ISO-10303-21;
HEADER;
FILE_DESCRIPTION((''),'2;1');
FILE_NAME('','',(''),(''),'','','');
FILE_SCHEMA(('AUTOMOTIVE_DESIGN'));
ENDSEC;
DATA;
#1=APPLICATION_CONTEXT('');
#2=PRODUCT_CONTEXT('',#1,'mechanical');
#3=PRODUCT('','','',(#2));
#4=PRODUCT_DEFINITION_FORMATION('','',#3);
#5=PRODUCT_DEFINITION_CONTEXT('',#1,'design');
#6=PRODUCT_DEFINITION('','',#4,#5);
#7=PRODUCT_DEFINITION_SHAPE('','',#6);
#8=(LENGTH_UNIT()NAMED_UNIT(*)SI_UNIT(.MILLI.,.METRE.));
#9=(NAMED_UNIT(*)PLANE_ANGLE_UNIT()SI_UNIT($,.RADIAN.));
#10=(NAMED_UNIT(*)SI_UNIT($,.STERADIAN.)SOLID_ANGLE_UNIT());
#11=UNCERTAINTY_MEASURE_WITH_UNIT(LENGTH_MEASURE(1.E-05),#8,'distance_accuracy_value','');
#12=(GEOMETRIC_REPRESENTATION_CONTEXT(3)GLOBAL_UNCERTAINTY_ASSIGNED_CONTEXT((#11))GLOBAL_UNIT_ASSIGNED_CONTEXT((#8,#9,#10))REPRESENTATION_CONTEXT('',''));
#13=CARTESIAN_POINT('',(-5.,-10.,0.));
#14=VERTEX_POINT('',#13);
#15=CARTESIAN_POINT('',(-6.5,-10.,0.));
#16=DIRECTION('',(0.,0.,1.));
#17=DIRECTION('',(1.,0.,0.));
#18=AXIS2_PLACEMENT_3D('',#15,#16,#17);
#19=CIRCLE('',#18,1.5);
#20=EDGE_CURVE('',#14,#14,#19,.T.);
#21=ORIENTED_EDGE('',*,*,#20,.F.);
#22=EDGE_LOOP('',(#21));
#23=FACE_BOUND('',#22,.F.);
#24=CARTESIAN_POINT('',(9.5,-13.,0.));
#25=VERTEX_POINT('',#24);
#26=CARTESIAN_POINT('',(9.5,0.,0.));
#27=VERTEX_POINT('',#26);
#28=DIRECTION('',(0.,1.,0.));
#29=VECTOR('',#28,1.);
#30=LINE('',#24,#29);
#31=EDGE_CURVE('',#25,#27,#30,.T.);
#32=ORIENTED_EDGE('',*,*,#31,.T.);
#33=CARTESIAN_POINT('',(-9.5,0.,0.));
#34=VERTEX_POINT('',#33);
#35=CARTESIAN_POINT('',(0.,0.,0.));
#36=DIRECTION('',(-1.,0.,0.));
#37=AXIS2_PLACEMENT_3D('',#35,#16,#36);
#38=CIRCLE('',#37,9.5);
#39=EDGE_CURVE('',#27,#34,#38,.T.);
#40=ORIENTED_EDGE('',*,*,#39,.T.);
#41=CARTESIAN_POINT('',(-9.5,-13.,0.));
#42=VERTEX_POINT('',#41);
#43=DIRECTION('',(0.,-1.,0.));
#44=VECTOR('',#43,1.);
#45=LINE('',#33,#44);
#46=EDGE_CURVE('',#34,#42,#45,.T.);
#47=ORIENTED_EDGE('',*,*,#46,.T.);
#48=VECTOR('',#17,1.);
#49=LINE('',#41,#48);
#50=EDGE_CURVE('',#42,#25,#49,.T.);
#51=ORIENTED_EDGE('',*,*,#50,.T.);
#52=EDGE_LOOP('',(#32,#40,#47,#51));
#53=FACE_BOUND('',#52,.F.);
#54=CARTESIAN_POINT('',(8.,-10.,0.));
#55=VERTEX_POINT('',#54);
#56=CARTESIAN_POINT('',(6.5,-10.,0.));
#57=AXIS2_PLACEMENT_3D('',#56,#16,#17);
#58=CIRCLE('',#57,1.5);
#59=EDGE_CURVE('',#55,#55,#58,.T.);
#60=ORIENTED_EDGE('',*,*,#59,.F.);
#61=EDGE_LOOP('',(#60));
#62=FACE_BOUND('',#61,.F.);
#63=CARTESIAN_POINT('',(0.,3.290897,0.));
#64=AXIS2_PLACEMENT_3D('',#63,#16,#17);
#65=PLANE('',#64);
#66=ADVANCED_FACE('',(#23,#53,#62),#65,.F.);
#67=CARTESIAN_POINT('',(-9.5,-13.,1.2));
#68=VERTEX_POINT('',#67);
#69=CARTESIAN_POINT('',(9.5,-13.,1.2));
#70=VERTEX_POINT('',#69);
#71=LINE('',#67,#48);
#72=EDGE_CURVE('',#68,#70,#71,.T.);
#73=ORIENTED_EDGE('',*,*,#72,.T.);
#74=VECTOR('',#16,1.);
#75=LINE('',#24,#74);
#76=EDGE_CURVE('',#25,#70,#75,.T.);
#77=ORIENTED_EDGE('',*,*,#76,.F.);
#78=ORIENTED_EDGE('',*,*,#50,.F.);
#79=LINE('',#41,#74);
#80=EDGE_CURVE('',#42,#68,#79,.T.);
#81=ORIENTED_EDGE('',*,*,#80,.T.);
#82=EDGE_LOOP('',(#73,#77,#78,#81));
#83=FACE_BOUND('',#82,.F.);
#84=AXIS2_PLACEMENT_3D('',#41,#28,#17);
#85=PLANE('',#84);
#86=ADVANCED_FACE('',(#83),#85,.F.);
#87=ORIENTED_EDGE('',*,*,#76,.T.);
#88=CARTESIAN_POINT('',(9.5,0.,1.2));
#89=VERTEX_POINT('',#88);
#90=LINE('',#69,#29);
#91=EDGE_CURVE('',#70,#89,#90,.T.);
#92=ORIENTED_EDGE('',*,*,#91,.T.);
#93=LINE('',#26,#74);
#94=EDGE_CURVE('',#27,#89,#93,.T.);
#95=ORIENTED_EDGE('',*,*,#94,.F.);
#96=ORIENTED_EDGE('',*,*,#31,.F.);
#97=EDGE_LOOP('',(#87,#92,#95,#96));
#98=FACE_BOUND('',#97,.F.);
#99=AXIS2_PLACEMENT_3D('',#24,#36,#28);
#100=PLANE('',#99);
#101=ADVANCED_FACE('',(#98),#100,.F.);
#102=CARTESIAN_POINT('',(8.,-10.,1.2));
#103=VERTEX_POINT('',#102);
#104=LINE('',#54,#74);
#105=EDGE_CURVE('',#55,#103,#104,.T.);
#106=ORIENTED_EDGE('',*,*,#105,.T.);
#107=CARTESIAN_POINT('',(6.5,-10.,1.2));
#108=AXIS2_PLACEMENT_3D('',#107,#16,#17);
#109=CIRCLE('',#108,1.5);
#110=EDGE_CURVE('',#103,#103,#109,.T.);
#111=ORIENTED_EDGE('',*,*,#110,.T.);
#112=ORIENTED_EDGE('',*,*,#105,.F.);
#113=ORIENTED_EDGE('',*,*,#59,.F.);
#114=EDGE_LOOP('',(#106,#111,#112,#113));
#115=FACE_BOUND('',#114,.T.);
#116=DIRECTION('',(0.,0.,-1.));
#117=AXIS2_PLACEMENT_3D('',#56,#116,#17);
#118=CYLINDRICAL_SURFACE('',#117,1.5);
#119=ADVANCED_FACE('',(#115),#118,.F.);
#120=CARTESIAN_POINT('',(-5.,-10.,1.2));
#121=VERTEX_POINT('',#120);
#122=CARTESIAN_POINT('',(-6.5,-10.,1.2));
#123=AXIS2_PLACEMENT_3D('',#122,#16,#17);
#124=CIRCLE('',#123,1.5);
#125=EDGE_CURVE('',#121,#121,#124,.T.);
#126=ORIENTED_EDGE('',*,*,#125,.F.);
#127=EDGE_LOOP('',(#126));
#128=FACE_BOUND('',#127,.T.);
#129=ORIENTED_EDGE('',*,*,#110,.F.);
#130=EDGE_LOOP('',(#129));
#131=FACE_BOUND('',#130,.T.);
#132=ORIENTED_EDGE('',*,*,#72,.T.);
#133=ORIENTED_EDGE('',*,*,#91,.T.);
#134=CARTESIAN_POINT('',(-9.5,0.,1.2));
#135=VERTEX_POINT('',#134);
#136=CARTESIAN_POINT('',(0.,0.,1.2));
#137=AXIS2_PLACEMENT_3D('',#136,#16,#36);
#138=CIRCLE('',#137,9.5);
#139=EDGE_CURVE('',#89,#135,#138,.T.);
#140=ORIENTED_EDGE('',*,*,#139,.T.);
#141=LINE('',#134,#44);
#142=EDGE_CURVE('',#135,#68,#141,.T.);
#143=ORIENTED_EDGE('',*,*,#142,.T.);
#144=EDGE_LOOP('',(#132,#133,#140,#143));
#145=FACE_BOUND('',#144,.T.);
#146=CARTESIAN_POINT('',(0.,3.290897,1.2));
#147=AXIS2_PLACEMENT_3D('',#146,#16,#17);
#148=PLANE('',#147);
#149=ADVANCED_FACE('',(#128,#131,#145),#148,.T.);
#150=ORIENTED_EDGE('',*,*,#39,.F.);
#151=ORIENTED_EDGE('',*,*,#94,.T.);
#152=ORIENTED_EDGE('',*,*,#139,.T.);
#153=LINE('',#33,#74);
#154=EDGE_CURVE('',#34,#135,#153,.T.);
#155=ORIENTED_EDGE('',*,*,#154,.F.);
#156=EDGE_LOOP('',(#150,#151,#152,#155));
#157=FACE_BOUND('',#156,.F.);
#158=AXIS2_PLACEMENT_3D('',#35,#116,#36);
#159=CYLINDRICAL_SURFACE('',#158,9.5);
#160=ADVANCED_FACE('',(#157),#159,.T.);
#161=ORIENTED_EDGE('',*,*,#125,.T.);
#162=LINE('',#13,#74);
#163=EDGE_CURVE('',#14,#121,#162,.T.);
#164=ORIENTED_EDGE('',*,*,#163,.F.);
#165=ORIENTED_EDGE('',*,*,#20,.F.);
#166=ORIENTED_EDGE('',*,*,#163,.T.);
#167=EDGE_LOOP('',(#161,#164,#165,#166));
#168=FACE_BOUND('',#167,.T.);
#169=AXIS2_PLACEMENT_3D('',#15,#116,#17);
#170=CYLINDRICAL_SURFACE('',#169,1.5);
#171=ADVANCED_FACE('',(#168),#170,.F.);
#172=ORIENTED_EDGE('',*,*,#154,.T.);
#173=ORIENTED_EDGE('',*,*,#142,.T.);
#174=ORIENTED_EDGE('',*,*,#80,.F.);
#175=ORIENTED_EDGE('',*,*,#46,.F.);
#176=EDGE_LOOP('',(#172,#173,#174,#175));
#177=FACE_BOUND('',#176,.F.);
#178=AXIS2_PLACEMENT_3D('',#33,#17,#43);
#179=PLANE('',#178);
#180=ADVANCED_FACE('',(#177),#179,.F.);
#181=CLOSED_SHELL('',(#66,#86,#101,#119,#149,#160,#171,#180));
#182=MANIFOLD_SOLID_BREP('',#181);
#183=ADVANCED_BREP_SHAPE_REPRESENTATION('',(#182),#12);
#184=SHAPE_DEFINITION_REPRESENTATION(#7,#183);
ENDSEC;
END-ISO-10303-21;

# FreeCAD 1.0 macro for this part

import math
import FreeCAD as App
import Part
import Sketcher

doc = App.newDocument("Part")
params = doc.addObject("Spreadsheet::Sheet", "Params")
for row, (alias, value) in enumerate([
    ("sketch1_diameter", "3 mm"),
    ("sketch1_radius", "9.5 mm"),
    ("sketch1_height", "13 mm"),
    ("pad1_length", "1.2 mm"),
], start=1):
    params.set(f"A{row}", alias)
    params.set(f"B{row}", "=" + value)
    params.setAlias(f"B{row}", alias)

body = doc.addObject("PartDesign::Body", "Body")

sketch1 = doc.addObject("Sketcher::SketchObject", "Sketch")
body.addObject(sketch1)
sketch1.AttachmentSupport = (doc.XY_Plane, [""])
sketch1.MapMode = "FlatFace"
sketch1.addGeometry(Part.ArcOfCircle(Part.Circle(App.Vector(0, 0, 0), App.Vector(0, 0, 1), 9.5), math.radians(0), math.radians(180)), False)
sketch1.addGeometry(Part.LineSegment(App.Vector(-9.5, 0, 0), App.Vector(-9.5, -13, 0)), False)
sketch1.addGeometry(Part.LineSegment(App.Vector(-9.5, -13, 0), App.Vector(9.5, -13, 0)), False)
sketch1.addGeometry(Part.LineSegment(App.Vector(9.5, -13, 0), App.Vector(9.5, 0, 0)), False)
sketch1.addGeometry(Part.Circle(App.Vector(-6.5, -10, 0), App.Vector(0, 0, 1), 1.5), False)
sketch1.addGeometry(Part.Circle(App.Vector(6.5, -10, 0), App.Vector(0, 0, 1), 1.5), False)
sketch1.addConstraint(Sketcher.Constraint("Tangent", 0, 2, 1, 1))
sketch1.addConstraint(Sketcher.Constraint("Coincident", 1, 2, 2, 1))
sketch1.addConstraint(Sketcher.Constraint("Coincident", 2, 2, 3, 1))
sketch1.addConstraint(Sketcher.Constraint("Tangent", 3, 2, 0, 1))
sketch1.addConstraint(Sketcher.Constraint("Vertical", 1))
sketch1.addConstraint(Sketcher.Constraint("Horizontal", 2))
sketch1.addConstraint(Sketcher.Constraint("Vertical", 3))
sketch1.addConstraint(Sketcher.Constraint("Coincident", 0, 3, -1, 1))
sketch1.addConstraint(Sketcher.Constraint("Equal", 4, 5))
sketch1.addConstraint(Sketcher.Constraint("Symmetric", 4, 3, 5, 3, -2))
sketch1.addConstraint(Sketcher.Constraint("Diameter", 4, 3.0))
sketch1.addConstraint(Sketcher.Constraint("Radius", 0, 9.5))
sketch1.addConstraint(Sketcher.Constraint("DistanceY", 1, 2, 1, 1, 13.0))
sketch1.addConstraint(Sketcher.Constraint("DistanceY", 4, 3, -1, 1, 10.0))
sketch1.addConstraint(Sketcher.Constraint("DistanceX", 4, 3, 5, 3, 13.0))
sketch1.setExpression("Constraints[10]", "Params.sketch1_diameter")
sketch1.setExpression("Constraints[11]", "Params.sketch1_radius")
sketch1.setExpression("Constraints[12]", "Params.sketch1_height")
pad1 = doc.addObject("PartDesign::Pad", "Pad")
body.addObject(pad1)
pad1.Profile = sketch1
pad1.setExpression("Length", "Params.pad1_length")

doc.recompute()
